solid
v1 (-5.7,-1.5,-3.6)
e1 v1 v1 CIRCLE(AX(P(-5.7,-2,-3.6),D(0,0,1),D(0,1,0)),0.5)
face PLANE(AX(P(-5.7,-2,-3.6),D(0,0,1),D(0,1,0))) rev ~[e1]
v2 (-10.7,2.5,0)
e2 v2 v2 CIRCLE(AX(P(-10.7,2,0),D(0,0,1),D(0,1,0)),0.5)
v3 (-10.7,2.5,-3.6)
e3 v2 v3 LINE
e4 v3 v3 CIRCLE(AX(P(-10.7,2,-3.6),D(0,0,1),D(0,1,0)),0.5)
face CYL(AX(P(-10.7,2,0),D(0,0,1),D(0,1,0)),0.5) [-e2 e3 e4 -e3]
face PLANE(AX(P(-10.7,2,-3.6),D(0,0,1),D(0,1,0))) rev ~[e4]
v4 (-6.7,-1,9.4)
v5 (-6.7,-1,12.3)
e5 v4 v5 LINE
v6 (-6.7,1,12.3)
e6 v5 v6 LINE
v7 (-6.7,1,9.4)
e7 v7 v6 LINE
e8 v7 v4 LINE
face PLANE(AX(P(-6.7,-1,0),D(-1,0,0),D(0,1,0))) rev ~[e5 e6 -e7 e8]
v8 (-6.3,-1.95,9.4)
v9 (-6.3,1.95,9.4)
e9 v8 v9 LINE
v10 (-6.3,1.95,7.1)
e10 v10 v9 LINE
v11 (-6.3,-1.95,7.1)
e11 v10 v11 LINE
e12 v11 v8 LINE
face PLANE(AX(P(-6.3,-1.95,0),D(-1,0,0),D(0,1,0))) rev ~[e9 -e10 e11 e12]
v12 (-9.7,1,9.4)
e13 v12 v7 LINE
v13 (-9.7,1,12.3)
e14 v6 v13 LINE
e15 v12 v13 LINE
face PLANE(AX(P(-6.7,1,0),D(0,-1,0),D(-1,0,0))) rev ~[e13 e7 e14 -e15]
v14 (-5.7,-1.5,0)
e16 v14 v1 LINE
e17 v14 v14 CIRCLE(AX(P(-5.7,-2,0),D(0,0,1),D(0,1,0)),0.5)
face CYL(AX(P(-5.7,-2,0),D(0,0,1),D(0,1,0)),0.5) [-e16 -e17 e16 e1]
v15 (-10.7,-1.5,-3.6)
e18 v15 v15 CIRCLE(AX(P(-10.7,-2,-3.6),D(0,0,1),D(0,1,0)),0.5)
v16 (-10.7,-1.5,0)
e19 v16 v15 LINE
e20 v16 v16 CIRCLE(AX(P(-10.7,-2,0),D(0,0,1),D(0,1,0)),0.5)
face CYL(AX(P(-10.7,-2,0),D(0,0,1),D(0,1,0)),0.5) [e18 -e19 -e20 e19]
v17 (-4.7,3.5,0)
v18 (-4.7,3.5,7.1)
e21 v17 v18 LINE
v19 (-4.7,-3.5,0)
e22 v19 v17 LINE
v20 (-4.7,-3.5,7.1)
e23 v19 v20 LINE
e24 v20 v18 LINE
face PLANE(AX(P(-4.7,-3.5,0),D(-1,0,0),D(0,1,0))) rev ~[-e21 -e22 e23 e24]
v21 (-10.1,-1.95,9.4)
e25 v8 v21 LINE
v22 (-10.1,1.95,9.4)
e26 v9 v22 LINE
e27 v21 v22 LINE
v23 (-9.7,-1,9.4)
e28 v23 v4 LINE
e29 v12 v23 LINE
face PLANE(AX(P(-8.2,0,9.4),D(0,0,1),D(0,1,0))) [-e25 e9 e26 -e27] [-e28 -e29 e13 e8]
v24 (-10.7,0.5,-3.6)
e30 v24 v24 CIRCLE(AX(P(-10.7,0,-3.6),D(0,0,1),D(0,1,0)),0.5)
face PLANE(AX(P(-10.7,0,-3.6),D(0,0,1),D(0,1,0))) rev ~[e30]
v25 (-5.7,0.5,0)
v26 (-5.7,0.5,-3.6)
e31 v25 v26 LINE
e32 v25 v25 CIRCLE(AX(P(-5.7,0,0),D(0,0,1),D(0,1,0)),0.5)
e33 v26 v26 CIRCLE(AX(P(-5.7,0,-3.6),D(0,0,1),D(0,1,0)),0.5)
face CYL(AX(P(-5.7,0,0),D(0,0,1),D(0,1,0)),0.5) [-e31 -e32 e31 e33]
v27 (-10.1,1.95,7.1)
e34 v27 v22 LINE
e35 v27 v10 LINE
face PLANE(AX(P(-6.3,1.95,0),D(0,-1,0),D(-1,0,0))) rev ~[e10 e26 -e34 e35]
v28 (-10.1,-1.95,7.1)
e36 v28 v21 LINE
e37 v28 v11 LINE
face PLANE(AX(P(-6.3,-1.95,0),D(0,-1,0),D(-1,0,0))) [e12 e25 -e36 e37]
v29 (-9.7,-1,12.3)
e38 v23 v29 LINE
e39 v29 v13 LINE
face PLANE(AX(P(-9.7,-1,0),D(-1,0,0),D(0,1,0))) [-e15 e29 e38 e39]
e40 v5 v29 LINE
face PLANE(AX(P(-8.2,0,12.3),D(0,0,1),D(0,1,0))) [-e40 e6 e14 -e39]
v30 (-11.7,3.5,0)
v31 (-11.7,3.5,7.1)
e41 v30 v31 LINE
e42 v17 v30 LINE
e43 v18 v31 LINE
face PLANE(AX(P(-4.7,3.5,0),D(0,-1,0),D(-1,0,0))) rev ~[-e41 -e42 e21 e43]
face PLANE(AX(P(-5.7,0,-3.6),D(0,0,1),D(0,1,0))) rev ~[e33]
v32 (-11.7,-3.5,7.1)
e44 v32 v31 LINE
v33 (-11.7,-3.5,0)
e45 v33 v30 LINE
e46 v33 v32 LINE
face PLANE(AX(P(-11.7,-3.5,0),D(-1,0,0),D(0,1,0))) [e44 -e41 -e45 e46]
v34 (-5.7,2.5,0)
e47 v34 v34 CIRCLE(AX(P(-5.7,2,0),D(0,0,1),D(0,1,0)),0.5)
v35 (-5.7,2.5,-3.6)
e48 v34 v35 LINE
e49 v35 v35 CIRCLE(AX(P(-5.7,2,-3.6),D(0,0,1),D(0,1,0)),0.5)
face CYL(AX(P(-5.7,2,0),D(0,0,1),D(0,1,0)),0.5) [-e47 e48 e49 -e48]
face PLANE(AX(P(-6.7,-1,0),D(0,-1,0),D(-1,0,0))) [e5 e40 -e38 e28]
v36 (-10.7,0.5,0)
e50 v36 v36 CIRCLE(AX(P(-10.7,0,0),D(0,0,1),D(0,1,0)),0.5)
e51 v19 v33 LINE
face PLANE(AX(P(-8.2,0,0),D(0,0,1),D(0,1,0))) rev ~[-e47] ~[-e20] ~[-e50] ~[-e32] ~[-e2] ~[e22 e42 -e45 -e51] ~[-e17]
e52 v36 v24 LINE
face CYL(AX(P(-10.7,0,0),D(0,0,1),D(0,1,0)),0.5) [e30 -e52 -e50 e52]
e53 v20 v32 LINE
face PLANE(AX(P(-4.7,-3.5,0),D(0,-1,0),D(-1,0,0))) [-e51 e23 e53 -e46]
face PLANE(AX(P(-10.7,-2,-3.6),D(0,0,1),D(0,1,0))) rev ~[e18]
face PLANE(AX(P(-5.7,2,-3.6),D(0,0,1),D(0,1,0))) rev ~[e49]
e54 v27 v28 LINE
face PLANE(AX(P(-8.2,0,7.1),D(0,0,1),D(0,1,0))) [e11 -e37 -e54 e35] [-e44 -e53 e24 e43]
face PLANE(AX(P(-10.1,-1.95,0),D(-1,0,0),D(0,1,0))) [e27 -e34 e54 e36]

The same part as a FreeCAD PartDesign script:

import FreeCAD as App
import Part
import Sketcher
Q = App.Units.Quantity


def add_polygon(sketch, points):
    """Adds a closed chain of lines whose ends are joined by coincident constraints."""
    first, n = sketch.GeometryCount, len(points)
    for a, b in zip(points, points[1:] + points[:1]):
        sketch.addGeometry(Part.LineSegment(App.Vector(*a, 0), App.Vector(*b, 0)), False)
    for i in range(n):
        sketch.addConstraint(Sketcher.Constraint("Coincident", first + i, 2, first + (i + 1) % n, 1))

doc = App.newDocument("Part")
body = doc.addObject("PartDesign::Body", "Body")

# Sketch on XY plane
sketch1 = body.newObject("Sketcher::SketchObject", "Sketch")
sketch1.AttachmentSupport = (doc.getObject("XY_Plane"), [""])
sketch1.MapMode = "FlatFace"
add_polygon(sketch1, [(-4, 4), (-4, -4), (4, -4), (4, 4)])  # lines 0-3
sketch1.addConstraint(Sketcher.Constraint("Vertical", 0))
sketch1.addConstraint(Sketcher.Constraint("Horizontal", 1))
sketch1.addConstraint(Sketcher.Constraint("Vertical", 2))
sketch1.addConstraint(Sketcher.Constraint("Horizontal", 3))
sketch1.addConstraint(Sketcher.Constraint("Symmetric", 0, 2, 2, 2, -1, 1))
sketch1.addConstraint(Sketcher.Constraint("Equal", 3, 0))
sketch1.addConstraint(Sketcher.Constraint("DistanceX", 1, 1, 1, 2, Q("7 mm")))
pad1 = body.newObject("PartDesign::Pad", "Pad")
pad1.Profile = sketch1
pad1.Length = 7.1

# Sketch on XY plane
sketch2 = body.newObject("Sketcher::SketchObject", "Sketch001")
sketch2.AttachmentSupport = (doc.getObject("XY_Plane"), [""])
sketch2.MapMode = "FlatFace"
sketch2.addGeometry(Part.Circle(App.Vector(0, 2.5, 0), App.Vector(0, 0, 1), 0.5), False)
sketch2.addGeometry(Part.Circle(App.Vector(0, -2.5, 0), App.Vector(0, 0, 1), 0.5), False)
sketch2.addGeometry(Part.Circle(App.Vector(2, 2.5, 0), App.Vector(0, 0, 1), 0.5), False)
sketch2.addGeometry(Part.Circle(App.Vector(-2, 2.5, 0), App.Vector(0, 0, 1), 0.5), False)
sketch2.addGeometry(Part.Circle(App.Vector(-2, -2.5, 0), App.Vector(0, 0, 1), 0.5), False)
sketch2.addGeometry(Part.Circle(App.Vector(2, -2.5, 0), App.Vector(0, 0, 1), 0.5), False)
sketch2.addConstraint(Sketcher.Constraint("Equal", 0, 1))
sketch2.addConstraint(Sketcher.Constraint("Equal", 1, 2))
sketch2.addConstraint(Sketcher.Constraint("Equal", 2, 3))
sketch2.addConstraint(Sketcher.Constraint("Equal", 3, 4))
sketch2.addConstraint(Sketcher.Constraint("Equal", 4, 5))
sketch2.addConstraint(Sketcher.Constraint("Symmetric", 0, 3, 1, 3, -1, 1))
sketch2.addConstraint(Sketcher.Constraint("Symmetric", 2, 3, 4, 3, -1, 1))
sketch2.addConstraint(Sketcher.Constraint("Symmetric", 3, 3, 5, 3, -1, 1))
sketch2.addConstraint(Sketcher.Constraint("Symmetric", 2, 3, 3, 3, -2))
sketch2.addConstraint(Sketcher.Constraint("PointOnObject", 0, 3, -2))
sketch2.addConstraint(Sketcher.Constraint("Horizontal", 0, 3, 2, 3))
sketch2.addConstraint(Sketcher.Constraint("Diameter", 0, Q("1 mm")))
sketch2.addConstraint(Sketcher.Constraint("DistanceX", -1, 1, 2, 3, Q("2 mm")))
sketch2.addConstraint(Sketcher.Constraint("DistanceY", 1, 3, 0, 3, Q("5 mm")))
pad2 = body.newObject("PartDesign::Pad", "Pad001")
pad2.Profile = sketch2
pad2.Length = 3.6
pad2.Reversed = True

# Sketch on XY plane
sketch3 = body.newObject("Sketcher::SketchObject", "Sketch002")
sketch3.AttachmentSupport = (doc.getObject("XY_Plane"), [""])
sketch3.MapMode = "FlatFace"
add_polygon(sketch3, [(-1.9, 1.9), (-1.9, -1.9), (1.9, -1.9), (1.9, 1.9)])  # lines 0-3
sketch3.addConstraint(Sketcher.Constraint("Vertical", 0))
sketch3.addConstraint(Sketcher.Constraint("Horizontal", 1))
sketch3.addConstraint(Sketcher.Constraint("Vertical", 2))
sketch3.addConstraint(Sketcher.Constraint("Horizontal", 3))
sketch3.addConstraint(Sketcher.Constraint("Symmetric", 0, 2, 2, 2, -1, 1))
sketch3.addConstraint(Sketcher.Constraint("DistanceX", 1, 1, 1, 2, Q("3.9 mm")))
sketch3.addConstraint(Sketcher.Constraint("DistanceY", 0, 2, 0, 1, Q("3.8 mm")))
pad3 = body.newObject("PartDesign::Pad", "Pad002")
pad3.Profile = sketch3
pad3.Length = 9.4

# Sketch on XY plane
sketch4 = body.newObject("Sketcher::SketchObject", "Sketch003")
sketch4.AttachmentSupport = (doc.getObject("XY_Plane"), [""])
sketch4.MapMode = "FlatFace"
add_polygon(sketch4, [(-1, 1.5), (-1, -1.5), (1, -1.5), (1, 1.5)])  # lines 0-3
sketch4.addConstraint(Sketcher.Constraint("Vertical", 0))
sketch4.addConstraint(Sketcher.Constraint("Horizontal", 1))
sketch4.addConstraint(Sketcher.Constraint("Vertical", 2))
sketch4.addConstraint(Sketcher.Constraint("Horizontal", 3))
sketch4.addConstraint(Sketcher.Constraint("Symmetric", 0, 2, 2, 2, -1, 1))
sketch4.addConstraint(Sketcher.Constraint("DistanceX", 1, 1, 1, 2, Q("2 mm")))
sketch4.addConstraint(Sketcher.Constraint("DistanceY", 0, 2, 0, 1, Q("3 mm")))
pad4 = body.newObject("PartDesign::Pad", "Pad003")
pad4.Profile = sketch4
pad4.Length = 12.3
body2 = doc.addObject("PartDesign::Body", "Body001")
doc.recompute()

body.Placement = App.Placement(App.Vector(-8.2, 0, 0), App.Rotation(App.Vector(0, 0, 1), 90))
boolean = body2.newObject("PartDesign::Boolean", "Boolean")
boolean.Type = "Fuse"
boolean.addObjects([body])

doc.recompute()
